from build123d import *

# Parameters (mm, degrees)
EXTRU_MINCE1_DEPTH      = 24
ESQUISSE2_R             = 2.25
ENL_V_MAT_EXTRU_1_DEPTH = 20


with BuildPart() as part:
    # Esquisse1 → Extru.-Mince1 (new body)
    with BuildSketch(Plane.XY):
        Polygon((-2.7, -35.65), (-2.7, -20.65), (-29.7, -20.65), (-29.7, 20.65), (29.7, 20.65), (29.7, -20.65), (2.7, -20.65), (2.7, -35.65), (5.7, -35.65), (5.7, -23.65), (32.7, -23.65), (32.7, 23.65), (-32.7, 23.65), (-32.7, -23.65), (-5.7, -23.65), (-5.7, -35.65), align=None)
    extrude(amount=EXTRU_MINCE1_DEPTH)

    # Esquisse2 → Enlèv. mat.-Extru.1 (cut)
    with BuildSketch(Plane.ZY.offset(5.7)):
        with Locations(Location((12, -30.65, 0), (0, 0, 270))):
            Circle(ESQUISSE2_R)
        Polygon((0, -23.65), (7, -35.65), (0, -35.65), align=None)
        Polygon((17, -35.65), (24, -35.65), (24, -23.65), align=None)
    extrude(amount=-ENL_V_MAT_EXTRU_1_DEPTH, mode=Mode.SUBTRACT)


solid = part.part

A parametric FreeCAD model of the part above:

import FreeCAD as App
import Part
import Sketcher
from FreeCAD import Vector
Q = App.Units.Quantity

doc = App.newDocument("Part")
body = doc.addObject("PartDesign::Body", "Body")

# Sketch on XY plane
sketch1 = doc.addObject("Sketcher::SketchObject", "Sketch")
body.addObject(sketch1)
sketch1.AttachmentSupport = (doc.XY_Plane, [""])
sketch1.MapMode = "FlatFace"
sketch1.addGeometry(Part.LineSegment(Vector(-2.7, -35.65, 0), Vector(-2.7, -20.65, 0)), False)
sketch1.addGeometry(Part.LineSegment(Vector(-2.7, -20.65, 0), Vector(-29.7, -20.65, 0)), False)
sketch1.addGeometry(Part.LineSegment(Vector(-29.7, -20.65, 0), Vector(-29.7, 20.65, 0)), False)
sketch1.addGeometry(Part.LineSegment(Vector(-29.7, 20.65, 0), Vector(29.7, 20.65, 0)), False)
sketch1.addGeometry(Part.LineSegment(Vector(29.7, 20.65, 0), Vector(29.7, -20.65, 0)), False)
sketch1.addGeometry(Part.LineSegment(Vector(29.7, -20.65, 0), Vector(2.7, -20.65, 0)), False)
sketch1.addGeometry(Part.LineSegment(Vector(2.7, -20.65, 0), Vector(2.7, -35.65, 0)), False)
sketch1.addGeometry(Part.LineSegment(Vector(2.7, -35.65, 0), Vector(5.7, -35.65, 0)), False)
sketch1.addGeometry(Part.LineSegment(Vector(5.7, -35.65, 0), Vector(5.7, -23.65, 0)), False)
sketch1.addGeometry(Part.LineSegment(Vector(5.7, -23.65, 0), Vector(32.7, -23.65, 0)), False)
sketch1.addGeometry(Part.LineSegment(Vector(32.7, -23.65, 0), Vector(32.7, 23.65, 0)), False)
sketch1.addGeometry(Part.LineSegment(Vector(32.7, 23.65, 0), Vector(-32.7, 23.65, 0)), False)
sketch1.addGeometry(Part.LineSegment(Vector(-32.7, 23.65, 0), Vector(-32.7, -23.65, 0)), False)
sketch1.addGeometry(Part.LineSegment(Vector(-32.7, -23.65, 0), Vector(-5.7, -23.65, 0)), False)
sketch1.addGeometry(Part.LineSegment(Vector(-5.7, -23.65, 0), Vector(-5.7, -35.65, 0)), False)
sketch1.addGeometry(Part.LineSegment(Vector(-5.7, -35.65, 0), Vector(-2.7, -35.65, 0)), False)
sketch1.addConstraint(Sketcher.Constraint("Coincident", 0, 2, 1, 1))
sketch1.addConstraint(Sketcher.Constraint("Coincident", 1, 2, 2, 1))
sketch1.addConstraint(Sketcher.Constraint("Coincident", 2, 2, 3, 1))
sketch1.addConstraint(Sketcher.Constraint("Coincident", 3, 2, 4, 1))
sketch1.addConstraint(Sketcher.Constraint("Coincident", 4, 2, 5, 1))
sketch1.addConstraint(Sketcher.Constraint("Coincident", 5, 2, 6, 1))
sketch1.addConstraint(Sketcher.Constraint("Coincident", 6, 2, 7, 1))
sketch1.addConstraint(Sketcher.Constraint("Coincident", 7, 2, 8, 1))
sketch1.addConstraint(Sketcher.Constraint("Coincident", 8, 2, 9, 1))
sketch1.addConstraint(Sketcher.Constraint("Coincident", 9, 2, 10, 1))
sketch1.addConstraint(Sketcher.Constraint("Coincident", 10, 2, 11, 1))
sketch1.addConstraint(Sketcher.Constraint("Coincident", 11, 2, 12, 1))
sketch1.addConstraint(Sketcher.Constraint("Coincident", 12, 2, 13, 1))
sketch1.addConstraint(Sketcher.Constraint("Coincident", 13, 2, 14, 1))
sketch1.addConstraint(Sketcher.Constraint("Coincident", 14, 2, 15, 1))
sketch1.addConstraint(Sketcher.Constraint("Coincident", 15, 2, 0, 1))
sketch1.addConstraint(Sketcher.Constraint("Vertical", 0))
sketch1.addConstraint(Sketcher.Constraint("Horizontal", 1))
sketch1.addConstraint(Sketcher.Constraint("Vertical", 2))
sketch1.addConstraint(Sketcher.Constraint("Horizontal", 3))
sketch1.addConstraint(Sketcher.Constraint("Vertical", 4))
sketch1.addConstraint(Sketcher.Constraint("Horizontal", 5))
sketch1.addConstraint(Sketcher.Constraint("Vertical", 6))
sketch1.addConstraint(Sketcher.Constraint("Horizontal", 7))
sketch1.addConstraint(Sketcher.Constraint("Vertical", 8))
sketch1.addConstraint(Sketcher.Constraint("Horizontal", 9))
sketch1.addConstraint(Sketcher.Constraint("Vertical", 10))
sketch1.addConstraint(Sketcher.Constraint("Horizontal", 11))
sketch1.addConstraint(Sketcher.Constraint("Vertical", 12))
sketch1.addConstraint(Sketcher.Constraint("Horizontal", 13))
sketch1.addConstraint(Sketcher.Constraint("Vertical", 14))
sketch1.addConstraint(Sketcher.Constraint("Horizontal", 15))
sketch1.addConstraint(Sketcher.Constraint("Symmetric", 1, 2, 3, 2, -1, 1))
sketch1.addConstraint(Sketcher.Constraint("Symmetric", 9, 2, 11, 2, -1, 1))
sketch1.addConstraint(Sketcher.Constraint("Symmetric", 0, 2, 5, 2, -2))
sketch1.addConstraint(Sketcher.Constraint("Symmetric", 8, 2, 13, 2, -2))
sketch1.addConstraint(Sketcher.Constraint("Horizontal", 7, 2, 14, 2))
sketch1.addConstraint(Sketcher.Constraint("Equal", 5, 9))
sketch1.addConstraint(Sketcher.Constraint("DistanceX", 1, 2, 1, 1, Q("27 mm")))
sketch1.addConstraint(Sketcher.Constraint("DistanceX", 7, 1, 7, 2, Q("3 mm")))
sketch1.addConstraint(Sketcher.Constraint("DistanceY", 0, 1, 0, 2, Q("15 mm")))
sketch1.addConstraint(Sketcher.Constraint("DistanceY", 8, 1, 8, 2, Q("12 mm")))
sketch1.addConstraint(Sketcher.Constraint("DistanceX", 3, 1, 3, 2, Q("59.4 mm")))
sketch1.addConstraint(Sketcher.Constraint("DistanceY", 2, 1, 2, 2, Q("41.3 mm")))
pad1 = doc.addObject("PartDesign::Pad", "Pad")
body.addObject(pad1)
pad1.Profile = sketch1
pad1.Length = 24

# Sketch on YZ plane
sketch2 = doc.addObject("Sketcher::SketchObject", "Sketch001")
body.addObject(sketch2)
sketch2.AttachmentSupport = (doc.YZ_Plane, [""])
sketch2.MapMode = "FlatFace"
sketch2.AttachmentOffset = App.Placement(Vector(0, 0, -5.7), App.Rotation())
sketch2.addGeometry(Part.Circle(Vector(-30.65, 12, 0), Vector(0, 0, 1), 2.25), False)
sketch2.addGeometry(Part.LineSegment(Vector(-35.65, 7, 0), Vector(-23.65, 0, 0)), False)
sketch2.addGeometry(Part.LineSegment(Vector(-23.65, 0, 0), Vector(-35.65, 0, 0)), False)
sketch2.addGeometry(Part.LineSegment(Vector(-35.65, 0, 0), Vector(-35.65, 7, 0)), False)
sketch2.addGeometry(Part.LineSegment(Vector(-35.65, 17, 0), Vector(-35.65, 24, 0)), False)
sketch2.addGeometry(Part.LineSegment(Vector(-35.65, 24, 0), Vector(-23.65, 24, 0)), False)
sketch2.addGeometry(Part.LineSegment(Vector(-23.65, 24, 0), Vector(-35.65, 17, 0)), False)
sketch2.addConstraint(Sketcher.Constraint("Coincident", 1, 2, 2, 1))
sketch2.addConstraint(Sketcher.Constraint("Coincident", 2, 2, 3, 1))
sketch2.addConstraint(Sketcher.Constraint("Coincident", 3, 2, 1, 1))
sketch2.addConstraint(Sketcher.Constraint("Coincident", 4, 2, 5, 1))
sketch2.addConstraint(Sketcher.Constraint("Coincident", 5, 2, 6, 1))
sketch2.addConstraint(Sketcher.Constraint("Coincident", 6, 2, 4, 1))
sketch2.addConstraint(Sketcher.Constraint("Horizontal", 2))
sketch2.addConstraint(Sketcher.Constraint("Vertical", 3))
sketch2.addConstraint(Sketcher.Constraint("Vertical", 4))
sketch2.addConstraint(Sketcher.Constraint("Horizontal", 5))
sketch2.addConstraint(Sketcher.Constraint("PointOnObject", 1, 2, -1))
sketch2.addConstraint(Sketcher.Constraint("Vertical", 3, 2, 4, 2))
sketch2.addConstraint(Sketcher.Constraint("Vertical", 1, 2, 5, 2))
sketch2.addConstraint(Sketcher.Constraint("Equal", 3, 4))
sketch2.addConstraint(Sketcher.Constraint("Diameter", 0, Q("4.5 mm")))
sketch2.addConstraint(Sketcher.Constraint("DistanceX", 2, 2, 2, 1, Q("12 mm")))
sketch2.addConstraint(Sketcher.Constraint("DistanceY", 3, 1, 3, 2, Q("7 mm")))
sketch2.addConstraint(Sketcher.Constraint("DistanceY", -1, 1, 0, 3, Q("12 mm")))
sketch2.addConstraint(Sketcher.Constraint("DistanceY", -1, 1, 4, 2, Q("24 mm")))
sketch2.addConstraint(Sketcher.Constraint("DistanceX", 0, 3, 1, 2, Q("7 mm")))
sketch2.addConstraint(Sketcher.Constraint("DistanceX", 0, 3, -1, 1, Q("30.65 mm")))
pocket1 = doc.addObject("PartDesign::Pocket", "Pocket")
body.addObject(pocket1)
pocket1.Profile = sketch2
pocket1.Length = 20
pocket1.Reversed = True

doc.recompute()
